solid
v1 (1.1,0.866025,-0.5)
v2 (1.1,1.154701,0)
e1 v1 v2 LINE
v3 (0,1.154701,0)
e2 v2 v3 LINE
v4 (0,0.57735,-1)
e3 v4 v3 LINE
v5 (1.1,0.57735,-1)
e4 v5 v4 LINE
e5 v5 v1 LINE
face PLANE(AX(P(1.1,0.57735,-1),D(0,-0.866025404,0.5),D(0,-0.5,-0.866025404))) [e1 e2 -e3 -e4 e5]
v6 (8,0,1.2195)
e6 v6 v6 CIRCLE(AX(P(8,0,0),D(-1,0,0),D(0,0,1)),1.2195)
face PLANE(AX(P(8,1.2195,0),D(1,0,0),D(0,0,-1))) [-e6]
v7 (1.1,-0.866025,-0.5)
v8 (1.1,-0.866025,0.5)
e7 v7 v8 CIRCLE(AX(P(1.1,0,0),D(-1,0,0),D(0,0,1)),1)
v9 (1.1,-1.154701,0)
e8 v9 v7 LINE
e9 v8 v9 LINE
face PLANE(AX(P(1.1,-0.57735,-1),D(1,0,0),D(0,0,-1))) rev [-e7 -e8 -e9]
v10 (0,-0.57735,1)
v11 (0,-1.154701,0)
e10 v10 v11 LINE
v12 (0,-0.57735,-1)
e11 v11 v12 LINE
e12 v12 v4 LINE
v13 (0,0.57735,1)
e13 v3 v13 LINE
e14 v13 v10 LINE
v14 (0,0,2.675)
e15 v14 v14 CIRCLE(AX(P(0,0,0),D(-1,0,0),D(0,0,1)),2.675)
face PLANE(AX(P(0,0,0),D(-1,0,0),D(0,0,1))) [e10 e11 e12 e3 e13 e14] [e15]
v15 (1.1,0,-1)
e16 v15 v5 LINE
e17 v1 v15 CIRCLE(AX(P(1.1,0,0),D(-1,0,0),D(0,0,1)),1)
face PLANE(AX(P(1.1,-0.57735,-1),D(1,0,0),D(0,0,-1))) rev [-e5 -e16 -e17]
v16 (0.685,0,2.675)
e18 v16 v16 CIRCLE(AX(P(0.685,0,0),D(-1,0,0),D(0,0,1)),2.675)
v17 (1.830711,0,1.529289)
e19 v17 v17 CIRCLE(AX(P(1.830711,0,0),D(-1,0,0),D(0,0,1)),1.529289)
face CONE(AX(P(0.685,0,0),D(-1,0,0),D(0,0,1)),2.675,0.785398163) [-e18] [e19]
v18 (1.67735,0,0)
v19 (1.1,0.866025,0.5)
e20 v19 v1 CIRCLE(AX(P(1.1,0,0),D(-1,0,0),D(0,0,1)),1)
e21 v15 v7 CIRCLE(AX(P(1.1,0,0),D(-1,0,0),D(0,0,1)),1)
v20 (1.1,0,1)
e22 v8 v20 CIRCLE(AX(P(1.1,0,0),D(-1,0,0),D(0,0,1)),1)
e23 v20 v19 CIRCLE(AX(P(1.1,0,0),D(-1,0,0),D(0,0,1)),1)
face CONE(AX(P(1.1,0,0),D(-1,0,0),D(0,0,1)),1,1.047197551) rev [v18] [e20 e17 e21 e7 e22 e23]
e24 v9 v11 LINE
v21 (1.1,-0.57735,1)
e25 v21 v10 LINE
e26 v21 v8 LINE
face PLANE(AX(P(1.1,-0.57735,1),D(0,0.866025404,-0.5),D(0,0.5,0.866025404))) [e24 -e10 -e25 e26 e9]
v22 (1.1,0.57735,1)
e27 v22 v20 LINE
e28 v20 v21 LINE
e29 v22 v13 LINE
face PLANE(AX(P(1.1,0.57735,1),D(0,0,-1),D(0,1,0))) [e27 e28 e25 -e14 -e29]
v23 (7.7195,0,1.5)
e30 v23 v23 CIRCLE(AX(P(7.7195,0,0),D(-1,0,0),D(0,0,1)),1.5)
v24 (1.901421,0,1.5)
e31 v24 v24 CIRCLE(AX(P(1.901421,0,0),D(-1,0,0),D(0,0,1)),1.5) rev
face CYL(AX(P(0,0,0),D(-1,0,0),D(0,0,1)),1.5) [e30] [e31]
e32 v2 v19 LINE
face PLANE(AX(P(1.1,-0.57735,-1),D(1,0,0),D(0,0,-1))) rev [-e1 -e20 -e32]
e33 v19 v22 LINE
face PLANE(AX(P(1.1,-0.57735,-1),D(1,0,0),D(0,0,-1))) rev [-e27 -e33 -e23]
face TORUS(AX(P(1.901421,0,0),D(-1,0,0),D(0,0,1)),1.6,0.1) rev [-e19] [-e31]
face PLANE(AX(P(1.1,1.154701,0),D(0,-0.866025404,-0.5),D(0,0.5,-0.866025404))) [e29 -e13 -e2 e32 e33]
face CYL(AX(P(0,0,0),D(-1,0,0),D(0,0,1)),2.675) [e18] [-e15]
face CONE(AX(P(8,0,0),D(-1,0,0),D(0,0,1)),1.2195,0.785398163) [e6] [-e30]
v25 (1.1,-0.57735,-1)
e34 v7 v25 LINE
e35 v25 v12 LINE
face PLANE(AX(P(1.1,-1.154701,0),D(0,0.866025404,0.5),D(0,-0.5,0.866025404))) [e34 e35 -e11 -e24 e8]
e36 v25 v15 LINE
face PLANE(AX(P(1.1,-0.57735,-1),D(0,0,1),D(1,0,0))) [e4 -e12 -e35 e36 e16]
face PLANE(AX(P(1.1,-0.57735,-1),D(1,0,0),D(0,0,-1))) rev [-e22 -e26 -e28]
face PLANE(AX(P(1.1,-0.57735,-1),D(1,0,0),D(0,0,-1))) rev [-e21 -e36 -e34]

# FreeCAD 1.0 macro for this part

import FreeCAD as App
import Part
import Sketcher

V = App.Vector
Q = App.Units.Quantity


def edges_at(feature, points):
    """Names of the edges that pass closest to the given points."""
    edges = feature.Shape.Edges
    near = lambda p: min(range(len(edges)), key=lambda i: edges[i].distToShape(Part.Vertex(*p))[0])
    return sorted({f"Edge{near(p) + 1}" for p in points})

doc = App.newDocument("Part")
body = doc.addObject("PartDesign::Body", "Body")

# Sketch on XY plane
sketch1 = doc.addObject("Sketcher::SketchObject", "Sketch")
body.addObject(sketch1)
sketch1.AttachmentSupport = (doc.XY_Plane, [""])
sketch1.MapMode = "FlatFace"
sketch1.addGeometry(Part.LineSegment(V(0, 2.67, 0), V(0, 0, 0)), False)
sketch1.addGeometry(Part.LineSegment(V(0, 0, 0), V(8, 0, 0)), False)
sketch1.addGeometry(Part.LineSegment(V(8, 0, 0), V(8, 1.22, 0)), False)
sketch1.addGeometry(Part.LineSegment(V(8, 1.22, 0), V(7.72, 1.5, 0)), False)
sketch1.addGeometry(Part.LineSegment(V(7.72, 1.5, 0), V(1.86, 1.5, 0)), False)
sketch1.addGeometry(Part.LineSegment(V(1.86, 1.5, 0), V(0.69, 2.67, 0)), False)
sketch1.addGeometry(Part.LineSegment(V(0.69, 2.67, 0), V(0, 2.67, 0)), False)
sketch1.addConstraint(Sketcher.Constraint("Coincident", 0, 2, 1, 1))
sketch1.addConstraint(Sketcher.Constraint("Coincident", 1, 2, 2, 1))
sketch1.addConstraint(Sketcher.Constraint("Coincident", 2, 2, 3, 1))
sketch1.addConstraint(Sketcher.Constraint("Coincident", 3, 2, 4, 1))
sketch1.addConstraint(Sketcher.Constraint("Coincident", 4, 2, 5, 1))
sketch1.addConstraint(Sketcher.Constraint("Coincident", 5, 2, 6, 1))
sketch1.addConstraint(Sketcher.Constraint("Coincident", 6, 2, 0, 1))
sketch1.addConstraint(Sketcher.Constraint("Vertical", 0))
sketch1.addConstraint(Sketcher.Constraint("Horizontal", 1))
sketch1.addConstraint(Sketcher.Constraint("Vertical", 2))
sketch1.addConstraint(Sketcher.Constraint("Horizontal", 4))
sketch1.addConstraint(Sketcher.Constraint("Horizontal", 6))
sketch1.addConstraint(Sketcher.Constraint("Coincident", 0, 2, -1, 1))
sketch1.addConstraint(Sketcher.Constraint("Parallel", 3, 5))
sketch1.addConstraint(Sketcher.Constraint("DistanceX", 1, 1, 1, 2, 8.0))
sketch1.addConstraint(Sketcher.Constraint("Angle", 3, Q("135 deg")))
sketch1.addConstraint(Sketcher.Constraint("DistanceY", -1, 1, 3, 2, 1.5))
sketch1.addConstraint(Sketcher.Constraint("DistanceX", 6, 2, 6, 1, 0.685))
sketch1.addConstraint(Sketcher.Constraint("DistanceY", 0, 2, 0, 1, 2.675))
sketch1.addConstraint(Sketcher.Constraint("DistanceX", 4, 2, 4, 1, 5.8595))
revolution = doc.addObject("PartDesign::Revolution", "Revolution")
body.addObject(revolution)
revolution.Profile = sketch1
revolution.ReferenceAxis = (sketch1, ["H_Axis"])
revolution.Angle = 360
doc.recompute()

fillet = doc.addObject("PartDesign::Fillet", "Fillet")
body.addObject(fillet)
fillet.Base = (revolution, edges_at(revolution, [(1.86, 0, -1.5)]))
fillet.Radius = 0.1

# Sketch on XY plane
sketch2 = doc.addObject("Sketcher::SketchObject", "Sketch001")
body.addObject(sketch2)
sketch2.AttachmentSupport = (doc.XY_Plane, [""])
sketch2.MapMode = "FlatFace"
sketch2.addGeometry(Part.LineSegment(V(1.1, 1, 0), V(0, 1, 0)), False)
sketch2.addGeometry(Part.LineSegment(V(0, 1, 0), V(0, 0, 0)), False)
sketch2.addGeometry(Part.LineSegment(V(0, 0, 0), V(1.7, 0, 0)), False)
sketch2.addGeometry(Part.LineSegment(V(1.7, 0, 0), V(1.1, 1, 0)), False)
sketch2.addConstraint(Sketcher.Constraint("Coincident", 0, 2, 1, 1))
sketch2.addConstraint(Sketcher.Constraint("Coincident", 1, 2, 2, 1))
sketch2.addConstraint(Sketcher.Constraint("Coincident", 2, 2, 3, 1))
sketch2.addConstraint(Sketcher.Constraint("Coincident", 3, 2, 0, 1))
sketch2.addConstraint(Sketcher.Constraint("Horizontal", 0))
sketch2.addConstraint(Sketcher.Constraint("Vertical", 1))
sketch2.addConstraint(Sketcher.Constraint("Horizontal", 2))
sketch2.addConstraint(Sketcher.Constraint("Coincident", 1, 2, -1, 1))
sketch2.addConstraint(Sketcher.Constraint("DistanceY", 1, 2, 1, 1, 1.0))
sketch2.addConstraint(Sketcher.Constraint("Angle", 3, Q("120 deg")))
sketch2.addConstraint(Sketcher.Constraint("DistanceX", 0, 2, 0, 1, 1.1))
groove = doc.addObject("PartDesign::Groove", "Groove")
body.addObject(groove)
groove.Profile = sketch2
groove.ReferenceAxis = (sketch2, ["H_Axis"])
groove.Angle = 360

# Sketch on YZ plane
sketch3 = doc.addObject("Sketcher::SketchObject", "Sketch002")
body.addObject(sketch3)
sketch3.AttachmentSupport = (doc.YZ_Plane, [""])
sketch3.MapMode = "FlatFace"
sketch3.addGeometry(Part.LineSegment(V(0.6, -1, 0), V(-0.6, -1, 0)), False)
sketch3.addGeometry(Part.LineSegment(V(-0.6, -1, 0), V(-1.2, 0, 0)), False)
sketch3.addGeometry(Part.LineSegment(V(-1.2, 0, 0), V(-0.6, 1, 0)), False)
sketch3.addGeometry(Part.LineSegment(V(-0.6, 1, 0), V(0.6, 1, 0)), False)
sketch3.addGeometry(Part.LineSegment(V(0.6, 1, 0), V(1.2, 0, 0)), False)
sketch3.addGeometry(Part.LineSegment(V(1.2, 0, 0), V(0.6, -1, 0)), False)
sketch3.addConstraint(Sketcher.Constraint("Coincident", 0, 2, 1, 1))
sketch3.addConstraint(Sketcher.Constraint("Coincident", 1, 2, 2, 1))
sketch3.addConstraint(Sketcher.Constraint("Coincident", 2, 2, 3, 1))
sketch3.addConstraint(Sketcher.Constraint("Coincident", 3, 2, 4, 1))
sketch3.addConstraint(Sketcher.Constraint("Coincident", 4, 2, 5, 1))
sketch3.addConstraint(Sketcher.Constraint("Coincident", 5, 2, 0, 1))
sketch3.addConstraint(Sketcher.Constraint("Horizontal", 0))
sketch3.addConstraint(Sketcher.Constraint("Horizontal", 3))
sketch3.addConstraint(Sketcher.Constraint("Symmetric", 0, 2, 3, 2, -1, 1))
sketch3.addConstraint(Sketcher.Constraint("Symmetric", 1, 2, 4, 2, -1, 1))
sketch3.addConstraint(Sketcher.Constraint("PointOnObject", 1, 2, -1))
sketch3.addConstraint(Sketcher.Constraint("Parallel", 2, 5))
sketch3.addConstraint(Sketcher.Constraint("Vertical", 0, 2, 2, 2))
sketch3.addConstraint(Sketcher.Constraint("Angle", 1, Q("120 deg")))
sketch3.addConstraint(Sketcher.Constraint("DistanceY", 0, 2, -1, 1, 1.0))
sketch3.addConstraint(Sketcher.Constraint("DistanceX", 0, 2, 0, 1, 1.154701))
pocket1 = doc.addObject("PartDesign::Pocket", "Pocket")
body.addObject(pocket1)
pocket1.Profile = sketch3
pocket1.Length = 1.1
pocket1.Reversed = True

doc.recompute()
